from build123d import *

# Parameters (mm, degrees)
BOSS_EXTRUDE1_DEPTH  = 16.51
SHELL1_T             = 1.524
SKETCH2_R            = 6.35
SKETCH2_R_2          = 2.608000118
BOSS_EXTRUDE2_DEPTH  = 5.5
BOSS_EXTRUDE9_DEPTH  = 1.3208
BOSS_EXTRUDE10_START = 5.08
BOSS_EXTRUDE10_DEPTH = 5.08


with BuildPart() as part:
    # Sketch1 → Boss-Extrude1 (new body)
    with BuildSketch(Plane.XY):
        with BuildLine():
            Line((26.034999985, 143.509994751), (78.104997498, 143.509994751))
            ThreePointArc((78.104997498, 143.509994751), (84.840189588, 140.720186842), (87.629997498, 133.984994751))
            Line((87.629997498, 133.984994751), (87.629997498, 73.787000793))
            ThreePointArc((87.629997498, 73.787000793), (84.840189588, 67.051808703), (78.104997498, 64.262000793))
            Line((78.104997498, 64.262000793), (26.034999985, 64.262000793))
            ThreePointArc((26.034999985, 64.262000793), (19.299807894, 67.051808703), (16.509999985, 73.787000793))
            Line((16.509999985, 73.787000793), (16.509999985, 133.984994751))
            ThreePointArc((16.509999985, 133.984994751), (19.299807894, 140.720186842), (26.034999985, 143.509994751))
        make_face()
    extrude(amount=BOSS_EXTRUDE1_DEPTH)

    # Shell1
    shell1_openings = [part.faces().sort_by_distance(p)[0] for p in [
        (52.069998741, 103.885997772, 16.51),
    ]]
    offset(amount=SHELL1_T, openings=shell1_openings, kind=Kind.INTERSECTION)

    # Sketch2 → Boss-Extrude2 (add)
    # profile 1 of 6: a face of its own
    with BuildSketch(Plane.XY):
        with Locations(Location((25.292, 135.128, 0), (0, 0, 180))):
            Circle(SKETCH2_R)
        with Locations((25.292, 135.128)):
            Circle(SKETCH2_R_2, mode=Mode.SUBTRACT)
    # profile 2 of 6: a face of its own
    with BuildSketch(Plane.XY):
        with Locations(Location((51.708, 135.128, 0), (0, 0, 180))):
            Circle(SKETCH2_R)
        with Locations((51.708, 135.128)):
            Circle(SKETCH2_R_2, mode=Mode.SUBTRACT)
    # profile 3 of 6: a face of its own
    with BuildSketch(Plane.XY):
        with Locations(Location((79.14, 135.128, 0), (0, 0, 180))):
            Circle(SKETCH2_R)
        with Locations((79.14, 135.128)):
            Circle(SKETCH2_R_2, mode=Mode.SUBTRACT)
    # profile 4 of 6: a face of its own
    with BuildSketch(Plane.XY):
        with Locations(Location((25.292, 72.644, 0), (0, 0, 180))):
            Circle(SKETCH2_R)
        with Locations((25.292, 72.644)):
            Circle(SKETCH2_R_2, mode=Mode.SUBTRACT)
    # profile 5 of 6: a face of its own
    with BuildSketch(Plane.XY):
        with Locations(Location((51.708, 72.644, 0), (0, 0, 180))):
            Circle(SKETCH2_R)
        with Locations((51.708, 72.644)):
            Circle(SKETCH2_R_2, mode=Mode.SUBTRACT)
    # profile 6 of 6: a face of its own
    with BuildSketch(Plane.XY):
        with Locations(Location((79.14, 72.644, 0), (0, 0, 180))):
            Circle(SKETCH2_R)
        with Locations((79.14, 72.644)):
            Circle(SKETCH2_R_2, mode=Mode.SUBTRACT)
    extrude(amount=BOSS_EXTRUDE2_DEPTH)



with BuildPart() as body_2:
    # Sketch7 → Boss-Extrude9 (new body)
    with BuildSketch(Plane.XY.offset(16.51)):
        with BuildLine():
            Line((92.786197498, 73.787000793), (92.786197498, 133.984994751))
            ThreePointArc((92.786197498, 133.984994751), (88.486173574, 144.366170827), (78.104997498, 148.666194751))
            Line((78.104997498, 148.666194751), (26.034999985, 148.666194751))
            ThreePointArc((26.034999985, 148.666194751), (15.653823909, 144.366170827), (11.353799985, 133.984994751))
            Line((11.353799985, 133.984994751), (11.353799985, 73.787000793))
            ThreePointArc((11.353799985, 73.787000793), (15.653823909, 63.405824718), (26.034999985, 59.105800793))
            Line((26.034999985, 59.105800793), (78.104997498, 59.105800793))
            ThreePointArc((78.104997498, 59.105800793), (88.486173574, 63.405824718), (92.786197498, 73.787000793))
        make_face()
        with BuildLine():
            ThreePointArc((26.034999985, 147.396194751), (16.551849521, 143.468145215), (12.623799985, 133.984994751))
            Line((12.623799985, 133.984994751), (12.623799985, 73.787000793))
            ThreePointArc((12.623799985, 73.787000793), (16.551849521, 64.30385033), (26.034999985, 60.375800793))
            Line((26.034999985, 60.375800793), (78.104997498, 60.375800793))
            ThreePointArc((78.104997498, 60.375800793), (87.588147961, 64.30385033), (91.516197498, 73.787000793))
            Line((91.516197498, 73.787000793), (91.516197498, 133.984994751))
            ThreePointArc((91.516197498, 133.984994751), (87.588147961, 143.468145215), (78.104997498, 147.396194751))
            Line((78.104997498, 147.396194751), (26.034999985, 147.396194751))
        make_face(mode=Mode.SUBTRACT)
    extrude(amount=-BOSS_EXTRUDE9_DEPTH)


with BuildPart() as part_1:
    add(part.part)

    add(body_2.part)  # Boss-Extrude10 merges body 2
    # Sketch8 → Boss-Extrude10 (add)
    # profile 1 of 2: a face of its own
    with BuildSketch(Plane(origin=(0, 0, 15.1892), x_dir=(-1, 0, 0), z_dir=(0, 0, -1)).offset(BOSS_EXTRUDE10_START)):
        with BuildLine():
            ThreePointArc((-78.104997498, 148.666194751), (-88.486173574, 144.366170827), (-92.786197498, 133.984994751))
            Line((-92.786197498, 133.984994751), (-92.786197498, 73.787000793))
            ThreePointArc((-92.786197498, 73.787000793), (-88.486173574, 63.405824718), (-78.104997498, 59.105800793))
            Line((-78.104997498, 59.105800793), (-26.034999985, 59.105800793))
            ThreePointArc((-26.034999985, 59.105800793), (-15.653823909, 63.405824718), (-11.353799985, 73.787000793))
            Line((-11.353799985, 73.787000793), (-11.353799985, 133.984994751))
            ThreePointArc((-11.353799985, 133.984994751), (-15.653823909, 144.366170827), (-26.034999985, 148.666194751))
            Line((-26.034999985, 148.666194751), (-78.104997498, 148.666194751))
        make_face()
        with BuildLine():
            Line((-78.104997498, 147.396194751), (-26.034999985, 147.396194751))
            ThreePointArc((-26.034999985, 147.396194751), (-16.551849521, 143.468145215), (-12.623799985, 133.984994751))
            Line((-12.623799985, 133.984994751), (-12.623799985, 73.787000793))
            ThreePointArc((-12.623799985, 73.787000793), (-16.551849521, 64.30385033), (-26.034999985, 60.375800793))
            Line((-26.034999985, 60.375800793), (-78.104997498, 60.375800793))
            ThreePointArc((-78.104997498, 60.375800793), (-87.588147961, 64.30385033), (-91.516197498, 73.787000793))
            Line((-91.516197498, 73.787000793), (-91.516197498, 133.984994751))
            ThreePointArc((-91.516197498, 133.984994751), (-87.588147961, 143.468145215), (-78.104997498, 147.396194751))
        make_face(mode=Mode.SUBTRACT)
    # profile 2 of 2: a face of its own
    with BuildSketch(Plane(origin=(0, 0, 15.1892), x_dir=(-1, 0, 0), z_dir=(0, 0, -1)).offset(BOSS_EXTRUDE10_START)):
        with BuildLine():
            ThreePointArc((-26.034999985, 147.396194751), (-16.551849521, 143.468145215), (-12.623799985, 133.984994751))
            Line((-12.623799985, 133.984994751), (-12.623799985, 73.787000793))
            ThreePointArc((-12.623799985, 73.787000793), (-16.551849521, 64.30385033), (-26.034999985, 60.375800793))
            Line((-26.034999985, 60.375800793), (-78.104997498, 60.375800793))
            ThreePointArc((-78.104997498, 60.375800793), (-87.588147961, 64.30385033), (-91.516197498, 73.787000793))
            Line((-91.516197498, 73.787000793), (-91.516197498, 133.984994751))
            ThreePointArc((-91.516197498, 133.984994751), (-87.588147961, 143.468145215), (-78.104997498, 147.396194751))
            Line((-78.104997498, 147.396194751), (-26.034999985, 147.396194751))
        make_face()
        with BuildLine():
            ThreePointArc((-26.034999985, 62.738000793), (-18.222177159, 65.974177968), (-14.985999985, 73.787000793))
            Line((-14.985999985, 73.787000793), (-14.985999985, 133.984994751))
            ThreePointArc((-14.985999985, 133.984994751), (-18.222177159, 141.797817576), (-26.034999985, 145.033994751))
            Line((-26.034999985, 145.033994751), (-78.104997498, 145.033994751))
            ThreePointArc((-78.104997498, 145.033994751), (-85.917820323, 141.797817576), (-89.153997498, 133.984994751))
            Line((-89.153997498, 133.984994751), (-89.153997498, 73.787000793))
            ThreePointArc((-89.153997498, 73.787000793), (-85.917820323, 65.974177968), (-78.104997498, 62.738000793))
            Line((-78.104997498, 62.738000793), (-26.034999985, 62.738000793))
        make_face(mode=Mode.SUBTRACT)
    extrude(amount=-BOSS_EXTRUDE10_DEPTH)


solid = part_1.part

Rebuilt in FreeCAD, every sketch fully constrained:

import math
import FreeCAD as App
import Part
import Sketcher
Q = App.Units.Quantity


def faces_at(feature, points):
    """Names of the faces that lie closest to the given points."""
    faces = feature.Shape.Faces
    near = lambda p: min(range(len(faces)), key=lambda i: faces[i].distToShape(Part.Vertex(*p))[0])
    return sorted({f"Face{near(p) + 1}" for p in points})

doc = App.newDocument("Part")
body = doc.addObject("PartDesign::Body", "Body")

# Sketch on XY plane
sketch1 = body.newObject("Sketcher::SketchObject", "Sketch")
sketch1.AttachmentSupport = (doc.getObject("XY_Plane"), [""])
sketch1.MapMode = "FlatFace"
sketch1.addGeometry(Part.LineSegment(App.Vector(78, 144, 0), App.Vector(26, 144, 0)), False)
sketch1.addGeometry(Part.ArcOfCircle(Part.Circle(App.Vector(26, 134, 0), App.Vector(0, 0, 1), 10), math.radians(90), math.radians(180)), False)
sketch1.addGeometry(Part.LineSegment(App.Vector(17, 134, 0), App.Vector(17, 74, 0)), False)
sketch1.addGeometry(Part.ArcOfCircle(Part.Circle(App.Vector(26, 74, 0), App.Vector(0, 0, 1), 10), math.radians(-180), math.radians(-90)), False)
sketch1.addGeometry(Part.LineSegment(App.Vector(26, 64, 0), App.Vector(78, 64, 0)), False)
sketch1.addGeometry(Part.ArcOfCircle(Part.Circle(App.Vector(78, 74, 0), App.Vector(0, 0, 1), 10), math.radians(-90), math.radians(0)), False)
sketch1.addGeometry(Part.LineSegment(App.Vector(88, 74, 0), App.Vector(88, 134, 0)), False)
sketch1.addGeometry(Part.ArcOfCircle(Part.Circle(App.Vector(78, 134, 0), App.Vector(0, 0, 1), 10), math.radians(0), math.radians(90)), False)
sketch1.addConstraint(Sketcher.Constraint("Tangent", 0, 2, 1, 1))
sketch1.addConstraint(Sketcher.Constraint("Tangent", 1, 2, 2, 1))
sketch1.addConstraint(Sketcher.Constraint("Tangent", 2, 2, 3, 1))
sketch1.addConstraint(Sketcher.Constraint("Tangent", 3, 2, 4, 1))
sketch1.addConstraint(Sketcher.Constraint("Tangent", 4, 2, 5, 1))
sketch1.addConstraint(Sketcher.Constraint("Tangent", 5, 2, 6, 1))
sketch1.addConstraint(Sketcher.Constraint("Tangent", 6, 2, 7, 1))
sketch1.addConstraint(Sketcher.Constraint("Tangent", 7, 2, 0, 1))
sketch1.addConstraint(Sketcher.Constraint("Horizontal", 0))
sketch1.addConstraint(Sketcher.Constraint("Vertical", 2))
sketch1.addConstraint(Sketcher.Constraint("Horizontal", 4))
sketch1.addConstraint(Sketcher.Constraint("Vertical", 6))
sketch1.addConstraint(Sketcher.Constraint("Equal", 1, 3))
sketch1.addConstraint(Sketcher.Constraint("Equal", 3, 5))
sketch1.addConstraint(Sketcher.Constraint("Equal", 5, 7))
sketch1.addConstraint(Sketcher.Constraint("Radius", 1, Q("0.375 in")))
sketch1.addConstraint(Sketcher.Constraint("DistanceX", 0, 2, 0, 1, Q("2.0499999 in")))
sketch1.addConstraint(Sketcher.Constraint("DistanceX", -1, 1, 1, 2, Q("0.65 in")))
sketch1.addConstraint(Sketcher.Constraint("DistanceY", -1, 1, 3, 2, Q("2.53 in")))
sketch1.addConstraint(Sketcher.Constraint("DistanceY", 2, 2, 2, 1, Q("60.197994 mm")))
pad1 = body.newObject("PartDesign::Pad", "Pad")
pad1.Profile = sketch1
pad1.Length = Q("0.65 in")
doc.recompute()

thickness = body.newObject("PartDesign::Thickness", "Thickness")
thickness.Base = (pad1, faces_at(pad1, [(52.07, 103.886, 16.51)]))
thickness.Value = Q("0.06 in")
thickness.Reversed = False
thickness.Join = "Intersection"

# Sketch on XY plane
sketch2 = body.newObject("Sketcher::SketchObject", "Sketch001")
sketch2.AttachmentSupport = (doc.getObject("XY_Plane"), [""])
sketch2.MapMode = "FlatFace"
sketch2.addGeometry(Part.Circle(App.Vector(25.3, 135.1, 0), App.Vector(0, 0, 1), 6.3), False)
sketch2.addGeometry(Part.Circle(App.Vector(25.3, 135.1, 0), App.Vector(0, 0, 1), 2.6), False)
sketch2.addGeometry(Part.Circle(App.Vector(51.7, 135.1, 0), App.Vector(0, 0, 1), 6.3), False)
sketch2.addGeometry(Part.Circle(App.Vector(51.7, 135.1, 0), App.Vector(0, 0, 1), 2.6), False)
sketch2.addGeometry(Part.Circle(App.Vector(79.1, 135.1, 0), App.Vector(0, 0, 1), 6.3), False)
sketch2.addGeometry(Part.Circle(App.Vector(79.1, 135.1, 0), App.Vector(0, 0, 1), 2.6), False)
sketch2.addGeometry(Part.Circle(App.Vector(25.3, 72.6, 0), App.Vector(0, 0, 1), 6.3), False)
sketch2.addGeometry(Part.Circle(App.Vector(25.3, 72.6, 0), App.Vector(0, 0, 1), 2.6), False)
sketch2.addGeometry(Part.Circle(App.Vector(51.7, 72.6, 0), App.Vector(0, 0, 1), 6.3), False)
sketch2.addGeometry(Part.Circle(App.Vector(51.7, 72.6, 0), App.Vector(0, 0, 1), 2.6), False)
sketch2.addGeometry(Part.Circle(App.Vector(79.1, 72.6, 0), App.Vector(0, 0, 1), 6.3), False)
sketch2.addGeometry(Part.Circle(App.Vector(79.1, 72.6, 0), App.Vector(0, 0, 1), 2.6), False)
sketch2.addConstraint(Sketcher.Constraint("Coincident", 1, 3, 0, 3))
sketch2.addConstraint(Sketcher.Constraint("Coincident", 3, 3, 2, 3))
sketch2.addConstraint(Sketcher.Constraint("Coincident", 5, 3, 4, 3))
sketch2.addConstraint(Sketcher.Constraint("Coincident", 7, 3, 6, 3))
sketch2.addConstraint(Sketcher.Constraint("Coincident", 9, 3, 8, 3))
sketch2.addConstraint(Sketcher.Constraint("Coincident", 11, 3, 10, 3))
sketch2.addConstraint(Sketcher.Constraint("Equal", 0, 2))
sketch2.addConstraint(Sketcher.Constraint("Equal", 1, 3))
sketch2.addConstraint(Sketcher.Constraint("Equal", 2, 4))
sketch2.addConstraint(Sketcher.Constraint("Equal", 3, 5))
sketch2.addConstraint(Sketcher.Constraint("Equal", 4, 6))
sketch2.addConstraint(Sketcher.Constraint("Equal", 5, 7))
sketch2.addConstraint(Sketcher.Constraint("Equal", 6, 8))
sketch2.addConstraint(Sketcher.Constraint("Equal", 7, 9))
sketch2.addConstraint(Sketcher.Constraint("Equal", 8, 10))
sketch2.addConstraint(Sketcher.Constraint("Equal", 9, 11))
sketch2.addConstraint(Sketcher.Constraint("Horizontal", 1, 3, 2, 3))
sketch2.addConstraint(Sketcher.Constraint("Horizontal", 3, 3, 4, 3))
sketch2.addConstraint(Sketcher.Constraint("Horizontal", 7, 3, 8, 3))
sketch2.addConstraint(Sketcher.Constraint("Horizontal", 9, 3, 10, 3))
sketch2.addConstraint(Sketcher.Constraint("Vertical", 1, 3, 6, 3))
sketch2.addConstraint(Sketcher.Constraint("Vertical", 3, 3, 8, 3))
sketch2.addConstraint(Sketcher.Constraint("Vertical", 5, 3, 10, 3))
sketch2.addConstraint(Sketcher.Constraint("Diameter", 0, Q("0.5 in")))
sketch2.addConstraint(Sketcher.Constraint("Diameter", 1, Q("5.216 mm")))
sketch2.addConstraint(Sketcher.Constraint("DistanceY", -1, 1, 0, 3, Q("5.32 in")))
sketch2.addConstraint(Sketcher.Constraint("DistanceY", -1, 1, 6, 3, Q("2.86 in")))
sketch2.addConstraint(Sketcher.Constraint("DistanceX", 0, 3, 2, 3, Q("1.04 in")))
sketch2.addConstraint(Sketcher.Constraint("DistanceX", 2, 3, 4, 3, Q("1.08 in")))
sketch2.addConstraint(Sketcher.Constraint("DistanceX", -1, 1, 0, 3, Q("25.292 mm")))
pad2 = body.newObject("PartDesign::Pad", "Pad001")
pad2.Profile = sketch2
pad2.Length = 5.5
body2 = doc.addObject("PartDesign::Body", "Body001")

# Sketch on XY plane
sketch3 = body2.newObject("Sketcher::SketchObject", "Sketch002")
sketch3.AttachmentSupport = (doc.getObject("XY_Plane001"), [""])
sketch3.MapMode = "FlatFace"
sketch3.AttachmentOffset = App.Placement(App.Vector(0, 0, 0.65 * 25.4), App.Rotation())
sketch3.addGeometry(Part.LineSegment(App.Vector(93, 74, 0), App.Vector(93, 134, 0)), False)
sketch3.addGeometry(Part.ArcOfCircle(Part.Circle(App.Vector(78, 134, 0), App.Vector(0, 0, 1), 15), math.radians(0), math.radians(90)), False)
sketch3.addGeometry(Part.LineSegment(App.Vector(78, 149, 0), App.Vector(26, 149, 0)), False)
sketch3.addGeometry(Part.ArcOfCircle(Part.Circle(App.Vector(26, 134, 0), App.Vector(0, 0, 1), 15), math.radians(90), math.radians(180)), False)
sketch3.addGeometry(Part.LineSegment(App.Vector(11, 134, 0), App.Vector(11, 74, 0)), False)
sketch3.addGeometry(Part.ArcOfCircle(Part.Circle(App.Vector(26, 74, 0), App.Vector(0, 0, 1), 15), math.radians(-180), math.radians(-90)), False)
sketch3.addGeometry(Part.LineSegment(App.Vector(26, 59, 0), App.Vector(78, 59, 0)), False)
sketch3.addGeometry(Part.ArcOfCircle(Part.Circle(App.Vector(78, 74, 0), App.Vector(0, 0, 1), 15), math.radians(-90), math.radians(0)), False)
sketch3.addGeometry(Part.ArcOfCircle(Part.Circle(App.Vector(26, 134, 0), App.Vector(0, 0, 1), 13), math.radians(90), math.radians(180)), False)
sketch3.addGeometry(Part.LineSegment(App.Vector(26, 147, 0), App.Vector(78, 147, 0)), False)
sketch3.addGeometry(Part.ArcOfCircle(Part.Circle(App.Vector(78, 134, 0), App.Vector(0, 0, 1), 13), math.radians(0), math.radians(90)), False)
sketch3.addGeometry(Part.LineSegment(App.Vector(92, 134, 0), App.Vector(92, 74, 0)), False)
sketch3.addGeometry(Part.ArcOfCircle(Part.Circle(App.Vector(78, 74, 0), App.Vector(0, 0, 1), 13), math.radians(-90), math.radians(0)), False)
sketch3.addGeometry(Part.LineSegment(App.Vector(78, 60, 0), App.Vector(26, 60, 0)), False)
sketch3.addGeometry(Part.ArcOfCircle(Part.Circle(App.Vector(26, 74, 0), App.Vector(0, 0, 1), 13), math.radians(-180), math.radians(-90)), False)
sketch3.addGeometry(Part.LineSegment(App.Vector(13, 74, 0), App.Vector(13, 134, 0)), False)
sketch3.addConstraint(Sketcher.Constraint("Tangent", 0, 2, 1, 1))
sketch3.addConstraint(Sketcher.Constraint("Tangent", 1, 2, 2, 1))
sketch3.addConstraint(Sketcher.Constraint("Tangent", 2, 2, 3, 1))
sketch3.addConstraint(Sketcher.Constraint("Tangent", 3, 2, 4, 1))
sketch3.addConstraint(Sketcher.Constraint("Tangent", 4, 2, 5, 1))
sketch3.addConstraint(Sketcher.Constraint("Tangent", 5, 2, 6, 1))
sketch3.addConstraint(Sketcher.Constraint("Tangent", 6, 2, 7, 1))
sketch3.addConstraint(Sketcher.Constraint("Tangent", 7, 2, 0, 1))
sketch3.addConstraint(Sketcher.Constraint("Tangent", 8, 1, 9, 1))
sketch3.addConstraint(Sketcher.Constraint("Tangent", 9, 2, 10, 2))
sketch3.addConstraint(Sketcher.Constraint("Tangent", 10, 1, 11, 1))
sketch3.addConstraint(Sketcher.Constraint("Tangent", 11, 2, 12, 2))
sketch3.addConstraint(Sketcher.Constraint("Tangent", 12, 1, 13, 1))
sketch3.addConstraint(Sketcher.Constraint("Tangent", 13, 2, 14, 2))
sketch3.addConstraint(Sketcher.Constraint("Tangent", 14, 1, 15, 1))
sketch3.addConstraint(Sketcher.Constraint("Tangent", 15, 2, 8, 2))
sketch3.addConstraint(Sketcher.Constraint("Vertical", 0))
sketch3.addConstraint(Sketcher.Constraint("Horizontal", 2))
sketch3.addConstraint(Sketcher.Constraint("Vertical", 4))
sketch3.addConstraint(Sketcher.Constraint("Horizontal", 6))
sketch3.addConstraint(Sketcher.Constraint("Horizontal", 9))
sketch3.addConstraint(Sketcher.Constraint("Vertical", 11))
sketch3.addConstraint(Sketcher.Constraint("Horizontal", 13))
sketch3.addConstraint(Sketcher.Constraint("Vertical", 15))
sketch3.addConstraint(Sketcher.Constraint("Coincident", 8, 3, 3, 3))
sketch3.addConstraint(Sketcher.Constraint("Coincident", 10, 3, 1, 3))
sketch3.addConstraint(Sketcher.Constraint("Coincident", 12, 3, 7, 3))
sketch3.addConstraint(Sketcher.Constraint("Equal", 1, 3))
sketch3.addConstraint(Sketcher.Constraint("Equal", 3, 5))
sketch3.addConstraint(Sketcher.Constraint("Equal", 5, 7))
sketch3.addConstraint(Sketcher.Constraint("Equal", 12, 14))
sketch3.addConstraint(Sketcher.Constraint("Radius", 1, Q("0.578 in")))
sketch3.addConstraint(Sketcher.Constraint("Radius", 8, Q("0.528 in")))
sketch3.addConstraint(Sketcher.Constraint("DistanceX", 2, 2, 2, 1, Q("2.0499999 in")))
sketch3.addConstraint(Sketcher.Constraint("DistanceX", -1, 1, 1, 3, Q("3.0749999 in")))
sketch3.addConstraint(Sketcher.Constraint("DistanceY", -1, 1, 5, 3, Q("2.905 in")))
sketch3.addConstraint(Sketcher.Constraint("DistanceY", 0, 1, 0, 2, Q("60.197994 mm")))
pad3 = body2.newObject("PartDesign::Pad", "Pad002")
pad3.Profile = sketch3
pad3.Length = Q("0.052 in")
pad3.Reversed = True
body.AllowCompound = True
doc.recompute()

boolean = body.newObject("PartDesign::Boolean", "Boolean")
boolean.Type = "Fuse"
boolean.addObjects([body2])

# Sketch on XY plane
sketch4 = body.newObject("Sketcher::SketchObject", "Sketch003")
sketch4.AttachmentSupport = (doc.getObject("XY_Plane"), [""])
sketch4.MapMode = "FlatFace"
sketch4.AttachmentOffset = App.Placement(App.Vector(0, 0, 0.398 * 25.4), App.Rotation())
sketch4.addGeometry(Part.ArcOfCircle(Part.Circle(App.Vector(78, 134, 0), App.Vector(0, 0, 1), 15), math.radians(0), math.radians(90)), False)
sketch4.addGeometry(Part.LineSegment(App.Vector(93, 134, 0), App.Vector(93, 74, 0)), False)
sketch4.addGeometry(Part.ArcOfCircle(Part.Circle(App.Vector(78, 74, 0), App.Vector(0, 0, 1), 15), math.radians(-90), math.radians(0)), False)
sketch4.addGeometry(Part.LineSegment(App.Vector(78, 59, 0), App.Vector(26, 59, 0)), False)
sketch4.addGeometry(Part.ArcOfCircle(Part.Circle(App.Vector(26, 74, 0), App.Vector(0, 0, 1), 15), math.radians(-180), math.radians(-90)), False)
sketch4.addGeometry(Part.LineSegment(App.Vector(11, 74, 0), App.Vector(11, 134, 0)), False)
sketch4.addGeometry(Part.ArcOfCircle(Part.Circle(App.Vector(26, 134, 0), App.Vector(0, 0, 1), 15), math.radians(90), math.radians(180)), False)
sketch4.addGeometry(Part.LineSegment(App.Vector(26, 149, 0), App.Vector(78, 149, 0)), False)
sketch4.addGeometry(Part.ArcOfCircle(Part.Circle(App.Vector(78, 74, 0), App.Vector(0, 0, 1), 11), math.radians(-90), math.radians(0)), False)
sketch4.addGeometry(Part.LineSegment(App.Vector(89, 74, 0), App.Vector(89, 134, 0)), False)
sketch4.addGeometry(Part.ArcOfCircle(Part.Circle(App.Vector(78, 134, 0), App.Vector(0, 0, 1), 11), math.radians(0), math.radians(90)), False)
sketch4.addGeometry(Part.LineSegment(App.Vector(78, 145, 0), App.Vector(26, 145, 0)), False)
sketch4.addGeometry(Part.ArcOfCircle(Part.Circle(App.Vector(26, 134, 0), App.Vector(0, 0, 1), 11), math.radians(90), math.radians(180)), False)
sketch4.addGeometry(Part.LineSegment(App.Vector(15, 134, 0), App.Vector(15, 74, 0)), False)
sketch4.addGeometry(Part.ArcOfCircle(Part.Circle(App.Vector(26, 74, 0), App.Vector(0, 0, 1), 11), math.radians(180), math.radians(270)), False)
sketch4.addGeometry(Part.LineSegment(App.Vector(26, 63, 0), App.Vector(78, 63, 0)), False)
sketch4.addConstraint(Sketcher.Constraint("Tangent", 0, 1, 1, 1))
sketch4.addConstraint(Sketcher.Constraint("Tangent", 1, 2, 2, 2))
sketch4.addConstraint(Sketcher.Constraint("Tangent", 2, 1, 3, 1))
sketch4.addConstraint(Sketcher.Constraint("Tangent", 3, 2, 4, 2))
sketch4.addConstraint(Sketcher.Constraint("Tangent", 4, 1, 5, 1))
sketch4.addConstraint(Sketcher.Constraint("Tangent", 5, 2, 6, 2))
sketch4.addConstraint(Sketcher.Constraint("Tangent", 6, 1, 7, 1))
sketch4.addConstraint(Sketcher.Constraint("Tangent", 7, 2, 0, 2))
sketch4.addConstraint(Sketcher.Constraint("Tangent", 8, 2, 9, 1))
sketch4.addConstraint(Sketcher.Constraint("Tangent", 9, 2, 10, 1))
sketch4.addConstraint(Sketcher.Constraint("Tangent", 10, 2, 11, 1))
sketch4.addConstraint(Sketcher.Constraint("Tangent", 11, 2, 12, 1))
sketch4.addConstraint(Sketcher.Constraint("Tangent", 12, 2, 13, 1))
sketch4.addConstraint(Sketcher.Constraint("Tangent", 13, 2, 14, 1))
sketch4.addConstraint(Sketcher.Constraint("Tangent", 14, 2, 15, 1))
sketch4.addConstraint(Sketcher.Constraint("Tangent", 15, 2, 8, 1))
sketch4.addConstraint(Sketcher.Constraint("Vertical", 1))
sketch4.addConstraint(Sketcher.Constraint("Horizontal", 3))
sketch4.addConstraint(Sketcher.Constraint("Vertical", 5))
sketch4.addConstraint(Sketcher.Constraint("Horizontal", 7))
sketch4.addConstraint(Sketcher.Constraint("Vertical", 9))
sketch4.addConstraint(Sketcher.Constraint("Horizontal", 11))
sketch4.addConstraint(Sketcher.Constraint("Vertical", 13))
sketch4.addConstraint(Sketcher.Constraint("Horizontal", 15))
sketch4.addConstraint(Sketcher.Constraint("Coincident", 8, 3, 2, 3))
sketch4.addConstraint(Sketcher.Constraint("Coincident", 10, 3, 0, 3))
sketch4.addConstraint(Sketcher.Constraint("Coincident", 12, 3, 6, 3))
sketch4.addConstraint(Sketcher.Constraint("Equal", 0, 2))
sketch4.addConstraint(Sketcher.Constraint("Equal", 2, 4))
sketch4.addConstraint(Sketcher.Constraint("Equal", 4, 6))
sketch4.addConstraint(Sketcher.Constraint("Equal", 12, 14))
sketch4.addConstraint(Sketcher.Constraint("Radius", 0, Q("0.578 in")))
sketch4.addConstraint(Sketcher.Constraint("Radius", 8, Q("0.435 in")))
sketch4.addConstraint(Sketcher.Constraint("DistanceX", 3, 2, 3, 1, Q("2.0499999 in")))
sketch4.addConstraint(Sketcher.Constraint("DistanceX", -1, 1, 8, 2, Q("3.5099999 in")))
sketch4.addConstraint(Sketcher.Constraint("DistanceY", -1, 1, 14, 2, Q("2.47 in")))
sketch4.addConstraint(Sketcher.Constraint("DistanceY", 1, 2, 1, 1, Q("60.197994 mm")))
pad4 = body.newObject("PartDesign::Pad", "Pad003")
pad4.Profile = sketch4
pad4.Length = Q("0.2 in")

doc.recompute()
